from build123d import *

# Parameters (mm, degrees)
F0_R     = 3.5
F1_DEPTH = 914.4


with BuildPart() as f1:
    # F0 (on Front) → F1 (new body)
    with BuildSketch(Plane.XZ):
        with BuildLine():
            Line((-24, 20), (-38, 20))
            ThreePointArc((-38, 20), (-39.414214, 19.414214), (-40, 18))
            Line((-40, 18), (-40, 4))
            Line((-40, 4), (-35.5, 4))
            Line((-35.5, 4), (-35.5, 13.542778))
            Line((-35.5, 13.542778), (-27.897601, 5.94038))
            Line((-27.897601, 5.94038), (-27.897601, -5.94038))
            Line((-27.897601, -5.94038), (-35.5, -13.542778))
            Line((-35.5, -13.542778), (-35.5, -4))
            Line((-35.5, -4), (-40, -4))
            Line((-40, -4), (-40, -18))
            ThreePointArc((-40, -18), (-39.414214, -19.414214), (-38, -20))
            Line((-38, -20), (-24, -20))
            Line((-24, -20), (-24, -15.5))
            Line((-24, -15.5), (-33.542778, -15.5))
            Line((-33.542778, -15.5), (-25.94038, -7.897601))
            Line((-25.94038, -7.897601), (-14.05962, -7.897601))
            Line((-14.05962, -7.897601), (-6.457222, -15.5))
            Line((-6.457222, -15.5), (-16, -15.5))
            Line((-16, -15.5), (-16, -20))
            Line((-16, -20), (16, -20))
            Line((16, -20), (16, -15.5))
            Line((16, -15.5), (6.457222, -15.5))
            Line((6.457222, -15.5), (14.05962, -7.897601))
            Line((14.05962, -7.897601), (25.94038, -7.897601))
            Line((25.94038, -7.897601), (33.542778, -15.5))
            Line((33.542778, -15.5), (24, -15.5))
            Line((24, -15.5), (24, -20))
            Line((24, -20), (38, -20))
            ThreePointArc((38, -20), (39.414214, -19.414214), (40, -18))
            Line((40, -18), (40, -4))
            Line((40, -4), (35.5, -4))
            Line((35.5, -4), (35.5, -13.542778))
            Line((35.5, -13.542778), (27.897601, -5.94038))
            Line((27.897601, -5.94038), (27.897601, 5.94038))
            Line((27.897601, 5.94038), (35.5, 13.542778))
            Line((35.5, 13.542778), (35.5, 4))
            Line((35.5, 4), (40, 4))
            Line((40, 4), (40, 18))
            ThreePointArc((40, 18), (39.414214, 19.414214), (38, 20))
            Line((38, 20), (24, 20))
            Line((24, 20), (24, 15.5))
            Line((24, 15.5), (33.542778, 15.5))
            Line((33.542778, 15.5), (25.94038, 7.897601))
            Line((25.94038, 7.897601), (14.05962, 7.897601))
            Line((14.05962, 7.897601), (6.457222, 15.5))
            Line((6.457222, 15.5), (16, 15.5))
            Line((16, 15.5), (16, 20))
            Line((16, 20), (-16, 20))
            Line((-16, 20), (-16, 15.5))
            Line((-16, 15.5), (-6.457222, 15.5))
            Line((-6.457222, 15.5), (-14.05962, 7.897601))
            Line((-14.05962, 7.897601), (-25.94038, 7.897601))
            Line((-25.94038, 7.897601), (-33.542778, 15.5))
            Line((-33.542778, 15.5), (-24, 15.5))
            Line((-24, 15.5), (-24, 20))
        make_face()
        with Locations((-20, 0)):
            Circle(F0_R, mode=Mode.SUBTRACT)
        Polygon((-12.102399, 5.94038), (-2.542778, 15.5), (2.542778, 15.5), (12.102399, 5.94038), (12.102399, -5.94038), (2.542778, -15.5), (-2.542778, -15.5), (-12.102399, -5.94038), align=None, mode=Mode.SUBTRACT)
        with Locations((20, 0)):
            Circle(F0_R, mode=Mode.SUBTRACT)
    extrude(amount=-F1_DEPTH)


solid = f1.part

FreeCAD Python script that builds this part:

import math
import FreeCAD as App
import Part
import Sketcher
Q = App.Units.Quantity

doc = App.newDocument("Part")
body = doc.addObject("PartDesign::Body", "Body")

sketch1 = doc.addObject("Sketcher::SketchObject", "Sketch")
body.addObject(sketch1)
sketch1.AttachmentSupport = (doc.XZ_Plane, [""])
sketch1.MapMode = "FlatFace"
sketch1.addGeometry([
    Part.LineSegment(App.Vector(-24, 20, 0), App.Vector(-38, 20, 0)),
    Part.ArcOfCircle(Part.Circle(App.Vector(-38, 18, 0), App.Vector(0, 0, 1), 2), math.radians(90), math.radians(180)),
    Part.LineSegment(App.Vector(-40, 18, 0), App.Vector(-40, 4, 0)),
    Part.LineSegment(App.Vector(-40, 4, 0), App.Vector(-35.5, 4, 0)),
    Part.LineSegment(App.Vector(-35.5, 4, 0), App.Vector(-35.5, 13.5, 0)),
    Part.LineSegment(App.Vector(-35.5, 13.5, 0), App.Vector(-27.9, 5.9, 0)),
    Part.LineSegment(App.Vector(-27.9, 5.9, 0), App.Vector(-27.9, -5.9, 0)),
    Part.LineSegment(App.Vector(-27.9, -5.9, 0), App.Vector(-35.5, -13.5, 0)),
    Part.LineSegment(App.Vector(-35.5, -13.5, 0), App.Vector(-35.5, -4, 0)),
    Part.LineSegment(App.Vector(-35.5, -4, 0), App.Vector(-40, -4, 0)),
    Part.LineSegment(App.Vector(-40, -4, 0), App.Vector(-40, -18, 0)),
    Part.ArcOfCircle(Part.Circle(App.Vector(-38, -18, 0), App.Vector(0, 0, 1), 2), math.radians(180), math.radians(270)),
    Part.LineSegment(App.Vector(-38, -20, 0), App.Vector(-24, -20, 0)),
    Part.LineSegment(App.Vector(-24, -20, 0), App.Vector(-24, -15.5, 0)),
    Part.LineSegment(App.Vector(-24, -15.5, 0), App.Vector(-33.5, -15.5, 0)),
    Part.LineSegment(App.Vector(-33.5, -15.5, 0), App.Vector(-25.9, -7.9, 0)),
    Part.LineSegment(App.Vector(-25.9, -7.9, 0), App.Vector(-14.1, -7.9, 0)),
    Part.LineSegment(App.Vector(-14.1, -7.9, 0), App.Vector(-6.5, -15.5, 0)),
    Part.LineSegment(App.Vector(-6.5, -15.5, 0), App.Vector(-16, -15.5, 0)),
    Part.LineSegment(App.Vector(-16, -15.5, 0), App.Vector(-16, -20, 0)),
    Part.LineSegment(App.Vector(-16, -20, 0), App.Vector(16, -20, 0)),
    Part.LineSegment(App.Vector(16, -20, 0), App.Vector(16, -15.5, 0)),
    Part.LineSegment(App.Vector(16, -15.5, 0), App.Vector(6.5, -15.5, 0)),
    Part.LineSegment(App.Vector(6.5, -15.5, 0), App.Vector(14.1, -7.9, 0)),
    Part.LineSegment(App.Vector(14.1, -7.9, 0), App.Vector(25.9, -7.9, 0)),
    Part.LineSegment(App.Vector(25.9, -7.9, 0), App.Vector(33.5, -15.5, 0)),
    Part.LineSegment(App.Vector(33.5, -15.5, 0), App.Vector(24, -15.5, 0)),
    Part.LineSegment(App.Vector(24, -15.5, 0), App.Vector(24, -20, 0)),
    Part.LineSegment(App.Vector(24, -20, 0), App.Vector(38, -20, 0)),
    Part.ArcOfCircle(Part.Circle(App.Vector(38, -18, 0), App.Vector(0, 0, 1), 2), math.radians(-90), math.radians(0)),
    Part.LineSegment(App.Vector(40, -18, 0), App.Vector(40, -4, 0)),
    Part.LineSegment(App.Vector(40, -4, 0), App.Vector(35.5, -4, 0)),
    Part.LineSegment(App.Vector(35.5, -4, 0), App.Vector(35.5, -13.5, 0)),
    Part.LineSegment(App.Vector(35.5, -13.5, 0), App.Vector(27.9, -5.9, 0)),
    Part.LineSegment(App.Vector(27.9, -5.9, 0), App.Vector(27.9, 5.9, 0)),
    Part.LineSegment(App.Vector(27.9, 5.9, 0), App.Vector(35.5, 13.5, 0)),
    Part.LineSegment(App.Vector(35.5, 13.5, 0), App.Vector(35.5, 4, 0)),
    Part.LineSegment(App.Vector(35.5, 4, 0), App.Vector(40, 4, 0)),
    Part.LineSegment(App.Vector(40, 4, 0), App.Vector(40, 18, 0)),
    Part.ArcOfCircle(Part.Circle(App.Vector(38, 18, 0), App.Vector(0, 0, 1), 2), math.radians(0), math.radians(90)),
    Part.LineSegment(App.Vector(38, 20, 0), App.Vector(24, 20, 0)),
    Part.LineSegment(App.Vector(24, 20, 0), App.Vector(24, 15.5, 0)),
    Part.LineSegment(App.Vector(24, 15.5, 0), App.Vector(33.5, 15.5, 0)),
    Part.LineSegment(App.Vector(33.5, 15.5, 0), App.Vector(25.9, 7.9, 0)),
    Part.LineSegment(App.Vector(25.9, 7.9, 0), App.Vector(14.1, 7.9, 0)),
    Part.LineSegment(App.Vector(14.1, 7.9, 0), App.Vector(6.5, 15.5, 0)),
    Part.LineSegment(App.Vector(6.5, 15.5, 0), App.Vector(16, 15.5, 0)),
    Part.LineSegment(App.Vector(16, 15.5, 0), App.Vector(16, 20, 0)),
    Part.LineSegment(App.Vector(16, 20, 0), App.Vector(-16, 20, 0)),
    Part.LineSegment(App.Vector(-16, 20, 0), App.Vector(-16, 15.5, 0)),
    Part.LineSegment(App.Vector(-16, 15.5, 0), App.Vector(-6.5, 15.5, 0)),
    Part.LineSegment(App.Vector(-6.5, 15.5, 0), App.Vector(-14.1, 7.9, 0)),
    Part.LineSegment(App.Vector(-14.1, 7.9, 0), App.Vector(-25.9, 7.9, 0)),
    Part.LineSegment(App.Vector(-25.9, 7.9, 0), App.Vector(-33.5, 15.5, 0)),
    Part.LineSegment(App.Vector(-33.5, 15.5, 0), App.Vector(-24, 15.5, 0)),
    Part.LineSegment(App.Vector(-24, 15.5, 0), App.Vector(-24, 20, 0)),
    Part.Circle(App.Vector(-20, 0, 0), App.Vector(0, 0, 1), 3.5),
    Part.LineSegment(App.Vector(-12.1, -5.9, 0), App.Vector(-12.1, 5.9, 0)),
    Part.LineSegment(App.Vector(-12.1, 5.9, 0), App.Vector(-2.5, 15.5, 0)),
    Part.LineSegment(App.Vector(-2.5, 15.5, 0), App.Vector(2.5, 15.5, 0)),
    Part.LineSegment(App.Vector(2.5, 15.5, 0), App.Vector(12.1, 5.9, 0)),
    Part.LineSegment(App.Vector(12.1, 5.9, 0), App.Vector(12.1, -5.9, 0)),
    Part.LineSegment(App.Vector(12.1, -5.9, 0), App.Vector(2.5, -15.5, 0)),
    Part.LineSegment(App.Vector(2.5, -15.5, 0), App.Vector(-2.5, -15.5, 0)),
    Part.LineSegment(App.Vector(-2.5, -15.5, 0), App.Vector(-12.1, -5.9, 0)),
    Part.Circle(App.Vector(20, 0, 0), App.Vector(0, 0, 1), 3.5),
], False)
sketch1.addConstraint([
    Sketcher.Constraint("Tangent", 0, 2, 1, 1),
    Sketcher.Constraint("Tangent", 1, 2, 2, 1),
    Sketcher.Constraint("Coincident", 2, 2, 3, 1),
    Sketcher.Constraint("Coincident", 3, 2, 4, 1),
    Sketcher.Constraint("Coincident", 4, 2, 5, 1),
    Sketcher.Constraint("Coincident", 5, 2, 6, 1),
    Sketcher.Constraint("Coincident", 6, 2, 7, 1),
    Sketcher.Constraint("Coincident", 7, 2, 8, 1),
    Sketcher.Constraint("Coincident", 8, 2, 9, 1),
    Sketcher.Constraint("Coincident", 9, 2, 10, 1),
    Sketcher.Constraint("Tangent", 10, 2, 11, 1),
    Sketcher.Constraint("Tangent", 11, 2, 12, 1),
    Sketcher.Constraint("Coincident", 12, 2, 13, 1),
    Sketcher.Constraint("Coincident", 13, 2, 14, 1),
    Sketcher.Constraint("Coincident", 14, 2, 15, 1),
    Sketcher.Constraint("Coincident", 15, 2, 16, 1),
    Sketcher.Constraint("Coincident", 16, 2, 17, 1),
    Sketcher.Constraint("Coincident", 17, 2, 18, 1),
    Sketcher.Constraint("Coincident", 18, 2, 19, 1),
    Sketcher.Constraint("Coincident", 19, 2, 20, 1),
    Sketcher.Constraint("Coincident", 20, 2, 21, 1),
    Sketcher.Constraint("Coincident", 21, 2, 22, 1),
    Sketcher.Constraint("Coincident", 22, 2, 23, 1),
    Sketcher.Constraint("Coincident", 23, 2, 24, 1),
    Sketcher.Constraint("Coincident", 24, 2, 25, 1),
    Sketcher.Constraint("Coincident", 25, 2, 26, 1),
    Sketcher.Constraint("Coincident", 26, 2, 27, 1),
    Sketcher.Constraint("Coincident", 27, 2, 28, 1),
    Sketcher.Constraint("Tangent", 28, 2, 29, 1),
    Sketcher.Constraint("Tangent", 29, 2, 30, 1),
    Sketcher.Constraint("Coincident", 30, 2, 31, 1),
    Sketcher.Constraint("Coincident", 31, 2, 32, 1),
    Sketcher.Constraint("Coincident", 32, 2, 33, 1),
    Sketcher.Constraint("Coincident", 33, 2, 34, 1),
    Sketcher.Constraint("Coincident", 34, 2, 35, 1),
    Sketcher.Constraint("Coincident", 35, 2, 36, 1),
    Sketcher.Constraint("Coincident", 36, 2, 37, 1),
    Sketcher.Constraint("Coincident", 37, 2, 38, 1),
    Sketcher.Constraint("Tangent", 38, 2, 39, 1),
    Sketcher.Constraint("Tangent", 39, 2, 40, 1),
    Sketcher.Constraint("Coincident", 40, 2, 41, 1),
    Sketcher.Constraint("Coincident", 41, 2, 42, 1),
    Sketcher.Constraint("Coincident", 42, 2, 43, 1),
    Sketcher.Constraint("Coincident", 43, 2, 44, 1),
    Sketcher.Constraint("Coincident", 44, 2, 45, 1),
    Sketcher.Constraint("Coincident", 45, 2, 46, 1),
    Sketcher.Constraint("Coincident", 46, 2, 47, 1),
    Sketcher.Constraint("Coincident", 47, 2, 48, 1),
    Sketcher.Constraint("Coincident", 48, 2, 49, 1),
    Sketcher.Constraint("Coincident", 49, 2, 50, 1),
    Sketcher.Constraint("Coincident", 50, 2, 51, 1),
    Sketcher.Constraint("Coincident", 51, 2, 52, 1),
    Sketcher.Constraint("Coincident", 52, 2, 53, 1),
    Sketcher.Constraint("Coincident", 53, 2, 54, 1),
    Sketcher.Constraint("Coincident", 54, 2, 55, 1),
    Sketcher.Constraint("Coincident", 55, 2, 0, 1),
    Sketcher.Constraint("Coincident", 57, 2, 58, 1),
    Sketcher.Constraint("Coincident", 58, 2, 59, 1),
    Sketcher.Constraint("Coincident", 59, 2, 60, 1),
    Sketcher.Constraint("Coincident", 60, 2, 61, 1),
    Sketcher.Constraint("Coincident", 61, 2, 62, 1),
    Sketcher.Constraint("Coincident", 62, 2, 63, 1),
    Sketcher.Constraint("Coincident", 63, 2, 64, 1),
    Sketcher.Constraint("Coincident", 64, 2, 57, 1),
    Sketcher.Constraint("Horizontal", 0),
    Sketcher.Constraint("Vertical", 2),
    Sketcher.Constraint("Horizontal", 3),
    Sketcher.Constraint("Vertical", 4),
    Sketcher.Constraint("Vertical", 6),
    Sketcher.Constraint("Vertical", 8),
    Sketcher.Constraint("Horizontal", 9),
    Sketcher.Constraint("Vertical", 10),
    Sketcher.Constraint("Horizontal", 12),
    Sketcher.Constraint("Vertical", 13),
    Sketcher.Constraint("Horizontal", 14),
    Sketcher.Constraint("Horizontal", 16),
    Sketcher.Constraint("Horizontal", 18),
    Sketcher.Constraint("Vertical", 19),
    Sketcher.Constraint("Horizontal", 20),
    Sketcher.Constraint("Vertical", 21),
    Sketcher.Constraint("Horizontal", 22),
    Sketcher.Constraint("Horizontal", 24),
    Sketcher.Constraint("Horizontal", 26),
    Sketcher.Constraint("Vertical", 27),
    Sketcher.Constraint("Horizontal", 28),
    Sketcher.Constraint("Vertical", 30),
    Sketcher.Constraint("Horizontal", 31),
    Sketcher.Constraint("Vertical", 32),
    Sketcher.Constraint("Vertical", 34),
    Sketcher.Constraint("Vertical", 36),
    Sketcher.Constraint("Horizontal", 37),
    Sketcher.Constraint("Vertical", 38),
    Sketcher.Constraint("Horizontal", 40),
    Sketcher.Constraint("Vertical", 41),
    Sketcher.Constraint("Horizontal", 42),
    Sketcher.Constraint("Horizontal", 44),
    Sketcher.Constraint("Horizontal", 46),
    Sketcher.Constraint("Vertical", 47),
    Sketcher.Constraint("Horizontal", 48),
    Sketcher.Constraint("Vertical", 49),
    Sketcher.Constraint("Horizontal", 50),
    Sketcher.Constraint("Horizontal", 52),
    Sketcher.Constraint("Horizontal", 54),
    Sketcher.Constraint("Vertical", 55),
    Sketcher.Constraint("Vertical", 57),
    Sketcher.Constraint("Horizontal", 59),
    Sketcher.Constraint("Vertical", 61),
    Sketcher.Constraint("Horizontal", 63),
    Sketcher.Constraint("Equal", 1, 11),
    Sketcher.Constraint("Equal", 11, 29),
    Sketcher.Constraint("Equal", 29, 39),
    Sketcher.Constraint("Equal", 56, 65),
    Sketcher.Constraint("Symmetric", 1, 3, 29, 3, -1, 1),
    Sketcher.Constraint("Symmetric", 11, 3, 39, 3, -1, 1),
    Sketcher.Constraint("Symmetric", 56, 3, 65, 3, -1, 1),
    Sketcher.Constraint("Symmetric", 3, 2, 31, 2, -1, 1),
    Sketcher.Constraint("Symmetric", 5, 2, 33, 2, -1, 1),
    Sketcher.Constraint("Symmetric", 7, 2, 35, 2, -1, 1),
    Sketcher.Constraint("Symmetric", 13, 2, 41, 2, -1, 1),
    Sketcher.Constraint("Symmetric", 15, 2, 43, 2, -1, 1),
    Sketcher.Constraint("Symmetric", 17, 2, 45, 2, -1, 1),
    Sketcher.Constraint("Symmetric", 19, 2, 47, 2, -1, 1),
    Sketcher.Constraint("Symmetric", 21, 2, 49, 2, -1, 1),
    Sketcher.Constraint("Symmetric", 23, 2, 51, 2, -1, 1),
    Sketcher.Constraint("Symmetric", 25, 2, 53, 2, -1, 1),
    Sketcher.Constraint("Symmetric", 57, 2, 61, 2, -1, 1),
    Sketcher.Constraint("Symmetric", 58, 2, 62, 2, -1, 1),
    Sketcher.Constraint("Symmetric", 11, 3, 29, 3, -2),
    Sketcher.Constraint("Symmetric", 18, 2, 21, 2, -2),
    Sketcher.Constraint("Symmetric", 16, 2, 23, 2, -2),
    Sketcher.Constraint("Symmetric", 14, 2, 25, 2, -2),
    Sketcher.Constraint("Symmetric", 8, 2, 31, 2, -2),
    Sketcher.Constraint("PointOnObject", 56, 3, -1),
    Sketcher.Constraint("Perpendicular", 5, 7),
    Sketcher.Constraint("Parallel", 7, 15),
    Sketcher.Constraint("Perpendicular", 15, 17),
    Sketcher.Constraint("Perpendicular", 17, 23),
    Sketcher.Constraint("Perpendicular", 23, 25),
    Sketcher.Constraint("Parallel", 25, 33),
    Sketcher.Constraint("Perpendicular", 33, 35),
    Sketcher.Constraint("Parallel", 35, 43),
    Sketcher.Constraint("Perpendicular", 43, 45),
    Sketcher.Constraint("Perpendicular", 45, 51),
    Sketcher.Constraint("Perpendicular", 51, 53),
    Sketcher.Constraint("Perpendicular", 53, 58),
    Sketcher.Constraint("Perpendicular", 58, 60),
    Sketcher.Constraint("Perpendicular", 62, 64),
    Sketcher.Constraint("Horizontal", 14, 2, 17, 2),
    Sketcher.Constraint("Horizontal", 12, 2, 19, 2),
    Sketcher.Constraint("Horizontal", 7, 2, 32, 2),
    Sketcher.Constraint("Horizontal", 6, 2, 33, 2),
    Sketcher.Constraint("Horizontal", 3, 2, 36, 2),
    Sketcher.Constraint("Horizontal", 34, 2, 57, 2),
    Sketcher.Constraint("Horizontal", 54, 2, 58, 2),
    Sketcher.Constraint("Horizontal", 57, 2, 60, 2),
    Sketcher.Constraint("Horizontal", 61, 2, 64, 2),
    Sketcher.Constraint("Vertical", 27, 2, 40, 2),
    Sketcher.Constraint("Vertical", 13, 2, 54, 2),
    Sketcher.Constraint("Equal", 14, 18),
    Sketcher.Constraint("Equal", 40, 2),
    Sketcher.Constraint("Equal", 54, 4),
    Sketcher.Constraint("Equal", 52, 6),
    Sketcher.Constraint("Equal", 37, 13),
    Sketcher.Constraint("Equal", 7, 15),
    Sketcher.Constraint("Diameter", 56, Q("7 mm")),
    Sketcher.Constraint("Radius", 1, Q("1.999999 mm")),
    Sketcher.Constraint("DistanceX", 0, 2, 0, 1, Q("14 mm")),
    Sketcher.Constraint("DistanceX", 20, 1, 20, 2, Q("32 mm")),
    Sketcher.Constraint("DistanceX", 3, 1, 3, 2, Q("4.5 mm")),
    Sketcher.Constraint("DistanceX", 1, 3, -1, 1, Q("38.000001 mm")),
    Sketcher.Constraint("DistanceX", 56, 3, -1, 1, Q("20 mm")),
    Sketcher.Constraint("DistanceX", 16, 1, 16, 2, Q("11.88076 mm")),
    Sketcher.Constraint("DistanceX", 5, 2, -1, 1, Q("27.897601 mm")),
    Sketcher.Constraint("DistanceX", 57, 2, -1, 1, Q("12.102399 mm")),
])
pad1 = doc.addObject("PartDesign::Pad", "Pad")
body.addObject(pad1)
pad1.Profile = sketch1
pad1.Length = 914.4
pad1.Reversed = True

doc.recompute()
